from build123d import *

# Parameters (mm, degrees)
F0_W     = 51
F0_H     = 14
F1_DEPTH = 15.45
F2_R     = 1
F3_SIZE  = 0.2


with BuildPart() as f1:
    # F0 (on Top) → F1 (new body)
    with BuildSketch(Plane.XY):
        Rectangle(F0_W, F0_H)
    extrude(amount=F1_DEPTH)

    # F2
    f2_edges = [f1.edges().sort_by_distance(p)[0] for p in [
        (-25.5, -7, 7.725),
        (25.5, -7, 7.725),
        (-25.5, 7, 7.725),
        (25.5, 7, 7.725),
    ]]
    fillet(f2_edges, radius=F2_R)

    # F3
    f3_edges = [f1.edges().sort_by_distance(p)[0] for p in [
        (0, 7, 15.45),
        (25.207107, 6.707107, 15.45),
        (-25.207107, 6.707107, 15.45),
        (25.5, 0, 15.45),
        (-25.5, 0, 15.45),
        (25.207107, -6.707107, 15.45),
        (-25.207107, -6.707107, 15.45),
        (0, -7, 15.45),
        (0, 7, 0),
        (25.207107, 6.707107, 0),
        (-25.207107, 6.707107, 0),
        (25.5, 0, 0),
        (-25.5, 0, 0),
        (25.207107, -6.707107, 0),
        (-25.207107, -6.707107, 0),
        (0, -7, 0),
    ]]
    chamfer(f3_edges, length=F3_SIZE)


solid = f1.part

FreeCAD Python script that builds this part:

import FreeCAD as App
import Part
import Sketcher

V = App.Vector


def edges_at(feature, points):
    """Names of the edges that pass closest to the given points."""
    edges = feature.Shape.Edges
    near = lambda p: min(range(len(edges)), key=lambda i: edges[i].distToShape(Part.Vertex(*p))[0])
    return sorted({f"Edge{near(p) + 1}" for p in points})

doc = App.newDocument("Part")
body = doc.addObject("PartDesign::Body", "Body")

# Sketch on XY plane
sketch1 = doc.addObject("Sketcher::SketchObject", "Sketch")
body.addObject(sketch1)
sketch1.AttachmentSupport = (doc.XY_Plane, [""])
sketch1.MapMode = "FlatFace"
sketch1.addGeometry(Part.LineSegment(V(-25.5, 7, 0), V(-25.5, -7, 0)), False)
sketch1.addGeometry(Part.LineSegment(V(-25.5, -7, 0), V(25.5, -7, 0)), False)
sketch1.addGeometry(Part.LineSegment(V(25.5, -7, 0), V(25.5, 7, 0)), False)
sketch1.addGeometry(Part.LineSegment(V(25.5, 7, 0), V(-25.5, 7, 0)), False)
sketch1.addConstraint(Sketcher.Constraint("Coincident", 0, 2, 1, 1))
sketch1.addConstraint(Sketcher.Constraint("Coincident", 1, 2, 2, 1))
sketch1.addConstraint(Sketcher.Constraint("Coincident", 2, 2, 3, 1))
sketch1.addConstraint(Sketcher.Constraint("Coincident", 3, 2, 0, 1))
sketch1.addConstraint(Sketcher.Constraint("Vertical", 0))
sketch1.addConstraint(Sketcher.Constraint("Horizontal", 1))
sketch1.addConstraint(Sketcher.Constraint("Vertical", 2))
sketch1.addConstraint(Sketcher.Constraint("Horizontal", 3))
sketch1.addConstraint(Sketcher.Constraint("Symmetric", 0, 2, 2, 2, -1, 1))
sketch1.addConstraint(Sketcher.Constraint("DistanceX", 1, 1, 1, 2, 51.0))
sketch1.addConstraint(Sketcher.Constraint("DistanceY", 0, 2, 0, 1, 14.0))
pad1 = doc.addObject("PartDesign::Pad", "Pad")
body.addObject(pad1)
pad1.Profile = sketch1
pad1.Length = 15.45
doc.recompute()

fillet = doc.addObject("PartDesign::Fillet", "Fillet")
body.addObject(fillet)
fillet.Base = (pad1, edges_at(pad1, [
    (-25.5, -7, 7.725),
    (25.5, -7, 7.725),
    (-25.5, 7, 7.725),
    (25.5, 7, 7.725),
]))
fillet.Radius = 1
doc.recompute()

chamfer = doc.addObject("PartDesign::Chamfer", "Chamfer")
body.addObject(chamfer)
chamfer.Base = (fillet, edges_at(fillet, [
    (0, 7, 15.45),
    (25.207, 6.707, 15.45),
    (-25.207, 6.707, 15.45),
    (25.5, 0, 15.45),
    (-25.5, 0, 15.45),
    (25.207, -6.707, 15.45),
    (-25.207, -6.707, 15.45),
    (0, -7, 15.45),
    (0, 7, 0),
    (25.207, 6.707, 0),
    (-25.207, 6.707, 0),
    (25.5, 0, 0),
    (-25.5, 0, 0),
    (25.207, -6.707, 0),
    (-25.207, -6.707, 0),
    (0, -7, 0),
]))
chamfer.Size = 0.2

doc.recompute()
